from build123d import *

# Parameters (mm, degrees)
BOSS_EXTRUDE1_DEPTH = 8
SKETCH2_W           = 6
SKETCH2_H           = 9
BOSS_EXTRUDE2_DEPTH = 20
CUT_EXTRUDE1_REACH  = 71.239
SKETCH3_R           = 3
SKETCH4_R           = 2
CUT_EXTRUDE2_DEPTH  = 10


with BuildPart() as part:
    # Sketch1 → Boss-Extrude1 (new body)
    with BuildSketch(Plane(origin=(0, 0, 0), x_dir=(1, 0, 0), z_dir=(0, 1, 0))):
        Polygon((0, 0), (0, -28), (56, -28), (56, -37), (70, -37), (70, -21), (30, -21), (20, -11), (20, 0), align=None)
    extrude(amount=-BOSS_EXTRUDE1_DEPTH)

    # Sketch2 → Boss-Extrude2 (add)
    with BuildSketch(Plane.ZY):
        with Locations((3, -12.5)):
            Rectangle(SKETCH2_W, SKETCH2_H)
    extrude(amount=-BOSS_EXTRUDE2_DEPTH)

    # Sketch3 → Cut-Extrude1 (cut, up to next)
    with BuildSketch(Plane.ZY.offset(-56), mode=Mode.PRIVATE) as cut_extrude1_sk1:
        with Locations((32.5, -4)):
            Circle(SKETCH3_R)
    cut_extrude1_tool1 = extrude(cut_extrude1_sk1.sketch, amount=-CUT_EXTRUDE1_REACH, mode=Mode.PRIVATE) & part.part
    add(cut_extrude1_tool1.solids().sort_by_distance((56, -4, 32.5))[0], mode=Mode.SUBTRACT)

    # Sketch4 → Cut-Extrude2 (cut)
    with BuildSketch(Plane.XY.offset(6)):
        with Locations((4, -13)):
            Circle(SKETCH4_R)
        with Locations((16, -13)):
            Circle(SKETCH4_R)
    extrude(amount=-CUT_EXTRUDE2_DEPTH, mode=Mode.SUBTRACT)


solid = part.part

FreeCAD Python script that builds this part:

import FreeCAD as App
import Part
import Sketcher
Q = App.Units.Quantity

doc = App.newDocument("Part")
body = doc.addObject("PartDesign::Body", "Body")

sketch1 = body.newObject("Sketcher::SketchObject", "Sketch")
sketch1.AttachmentSupport = (doc.getObject("XZ_Plane"), [""])
sketch1.MapMode = "FlatFace"
sketch1.addGeometry(Part.LineSegment(App.Vector(0, 0, 0), App.Vector(0, 28, 0)), False)
sketch1.addGeometry(Part.LineSegment(App.Vector(0, 28, 0), App.Vector(56, 28, 0)), False)
sketch1.addGeometry(Part.LineSegment(App.Vector(56, 28, 0), App.Vector(56, 37, 0)), False)
sketch1.addGeometry(Part.LineSegment(App.Vector(56, 37, 0), App.Vector(70, 37, 0)), False)
sketch1.addGeometry(Part.LineSegment(App.Vector(70, 37, 0), App.Vector(70, 21, 0)), False)
sketch1.addGeometry(Part.LineSegment(App.Vector(70, 21, 0), App.Vector(30, 21, 0)), False)
sketch1.addGeometry(Part.LineSegment(App.Vector(30, 21, 0), App.Vector(20, 11, 0)), False)
sketch1.addGeometry(Part.LineSegment(App.Vector(20, 11, 0), App.Vector(20, 0, 0)), False)
sketch1.addGeometry(Part.LineSegment(App.Vector(20, 0, 0), App.Vector(0, 0, 0)), False)
sketch1.addConstraint(Sketcher.Constraint("Coincident", 0, 2, 1, 1))
sketch1.addConstraint(Sketcher.Constraint("Coincident", 1, 2, 2, 1))
sketch1.addConstraint(Sketcher.Constraint("Coincident", 2, 2, 3, 1))
sketch1.addConstraint(Sketcher.Constraint("Coincident", 3, 2, 4, 1))
sketch1.addConstraint(Sketcher.Constraint("Coincident", 4, 2, 5, 1))
sketch1.addConstraint(Sketcher.Constraint("Coincident", 5, 2, 6, 1))
sketch1.addConstraint(Sketcher.Constraint("Coincident", 6, 2, 7, 1))
sketch1.addConstraint(Sketcher.Constraint("Coincident", 7, 2, 8, 1))
sketch1.addConstraint(Sketcher.Constraint("Coincident", 8, 2, 0, 1))
sketch1.addConstraint(Sketcher.Constraint("Vertical", 0))
sketch1.addConstraint(Sketcher.Constraint("Horizontal", 1))
sketch1.addConstraint(Sketcher.Constraint("Vertical", 2))
sketch1.addConstraint(Sketcher.Constraint("Horizontal", 3))
sketch1.addConstraint(Sketcher.Constraint("Vertical", 4))
sketch1.addConstraint(Sketcher.Constraint("Horizontal", 5))
sketch1.addConstraint(Sketcher.Constraint("Vertical", 7))
sketch1.addConstraint(Sketcher.Constraint("Horizontal", 8))
sketch1.addConstraint(Sketcher.Constraint("Coincident", 8, 2, -1, 1))
sketch1.addConstraint(Sketcher.Constraint("DistanceX", 1, 1, 1, 2, Q("56 mm")))
sketch1.addConstraint(Sketcher.Constraint("DistanceX", 3, 1, 3, 2, Q("14 mm")))
sketch1.addConstraint(Sketcher.Constraint("DistanceX", 5, 2, 5, 1, Q("40 mm")))
sketch1.addConstraint(Sketcher.Constraint("DistanceX", 8, 2, 8, 1, Q("20 mm")))
sketch1.addConstraint(Sketcher.Constraint("DistanceY", 0, 1, 0, 2, Q("28 mm")))
sketch1.addConstraint(Sketcher.Constraint("DistanceY", 2, 1, 2, 2, Q("9 mm")))
sketch1.addConstraint(Sketcher.Constraint("DistanceY", 4, 2, 4, 1, Q("16 mm")))
sketch1.addConstraint(Sketcher.Constraint("DistanceY", 7, 2, 7, 1, Q("11 mm")))
pad1 = body.newObject("PartDesign::Pad", "Pad")
pad1.Profile = sketch1
pad1.Length = 8

sketch2 = body.newObject("Sketcher::SketchObject", "Sketch001")
sketch2.AttachmentSupport = (doc.getObject("YZ_Plane"), [""])
sketch2.MapMode = "FlatFace"
sketch2.addGeometry(Part.LineSegment(App.Vector(-8, 0, 0), App.Vector(-17, 0, 0)), False)
sketch2.addGeometry(Part.LineSegment(App.Vector(-17, 0, 0), App.Vector(-17, 6, 0)), False)
sketch2.addGeometry(Part.LineSegment(App.Vector(-17, 6, 0), App.Vector(-8, 6, 0)), False)
sketch2.addGeometry(Part.LineSegment(App.Vector(-8, 6, 0), App.Vector(-8, 0, 0)), False)
sketch2.addConstraint(Sketcher.Constraint("Coincident", 0, 2, 1, 1))
sketch2.addConstraint(Sketcher.Constraint("Coincident", 1, 2, 2, 1))
sketch2.addConstraint(Sketcher.Constraint("Coincident", 2, 2, 3, 1))
sketch2.addConstraint(Sketcher.Constraint("Coincident", 3, 2, 0, 1))
sketch2.addConstraint(Sketcher.Constraint("Horizontal", 0))
sketch2.addConstraint(Sketcher.Constraint("Vertical", 1))
sketch2.addConstraint(Sketcher.Constraint("Horizontal", 2))
sketch2.addConstraint(Sketcher.Constraint("Vertical", 3))
sketch2.addConstraint(Sketcher.Constraint("PointOnObject", 0, 2, -1))
sketch2.addConstraint(Sketcher.Constraint("DistanceX", 0, 2, 0, 1, Q("9 mm")))
sketch2.addConstraint(Sketcher.Constraint("DistanceY", 1, 1, 1, 2, Q("6 mm")))
sketch2.addConstraint(Sketcher.Constraint("DistanceX", 0, 2, -1, 1, Q("17 mm")))
pad2 = body.newObject("PartDesign::Pad", "Pad001")
pad2.Profile = sketch2
pad2.Length = 20

sketch3 = body.newObject("Sketcher::SketchObject", "Sketch002")
sketch3.AttachmentSupport = (doc.getObject("YZ_Plane"), [""])
sketch3.MapMode = "FlatFace"
sketch3.AttachmentOffset = App.Placement(App.Vector(0, 0, 56), App.Rotation())
sketch3.addGeometry(Part.Circle(App.Vector(-4, 32.5, 0), App.Vector(0, 0, 1), 3), False)
sketch3.addConstraint(Sketcher.Constraint("Diameter", 0, Q("6 mm")))
sketch3.addConstraint(Sketcher.Constraint("DistanceX", 0, 3, -1, 1, Q("4 mm")))
sketch3.addConstraint(Sketcher.Constraint("DistanceY", -1, 1, 0, 3, Q("32.5 mm")))
pocket1 = body.newObject("PartDesign::Pocket", "Pocket")
pocket1.Profile = sketch3
pocket1.Type = "UpToFirst"
pocket1.Reversed = True

sketch4 = body.newObject("Sketcher::SketchObject", "Sketch003")
sketch4.AttachmentSupport = (doc.getObject("XY_Plane"), [""])
sketch4.MapMode = "FlatFace"
sketch4.AttachmentOffset = App.Placement(App.Vector(0, 0, 6), App.Rotation())
sketch4.addGeometry(Part.Circle(App.Vector(4, -13, 0), App.Vector(0, 0, 1), 2), False)
sketch4.addGeometry(Part.Circle(App.Vector(16, -13, 0), App.Vector(0, 0, 1), 2), False)
sketch4.addConstraint(Sketcher.Constraint("Equal", 0, 1))
sketch4.addConstraint(Sketcher.Constraint("Horizontal", 0, 3, 1, 3))
sketch4.addConstraint(Sketcher.Constraint("Diameter", 0, Q("4 mm")))
sketch4.addConstraint(Sketcher.Constraint("DistanceX", -1, 1, 0, 3, Q("4 mm")))
sketch4.addConstraint(Sketcher.Constraint("DistanceY", 0, 3, -1, 1, Q("13 mm")))
sketch4.addConstraint(Sketcher.Constraint("DistanceX", -1, 1, 1, 3, Q("16 mm")))
pocket2 = body.newObject("PartDesign::Pocket", "Pocket001")
pocket2.Profile = sketch4
pocket2.Length = 10

doc.recompute()
